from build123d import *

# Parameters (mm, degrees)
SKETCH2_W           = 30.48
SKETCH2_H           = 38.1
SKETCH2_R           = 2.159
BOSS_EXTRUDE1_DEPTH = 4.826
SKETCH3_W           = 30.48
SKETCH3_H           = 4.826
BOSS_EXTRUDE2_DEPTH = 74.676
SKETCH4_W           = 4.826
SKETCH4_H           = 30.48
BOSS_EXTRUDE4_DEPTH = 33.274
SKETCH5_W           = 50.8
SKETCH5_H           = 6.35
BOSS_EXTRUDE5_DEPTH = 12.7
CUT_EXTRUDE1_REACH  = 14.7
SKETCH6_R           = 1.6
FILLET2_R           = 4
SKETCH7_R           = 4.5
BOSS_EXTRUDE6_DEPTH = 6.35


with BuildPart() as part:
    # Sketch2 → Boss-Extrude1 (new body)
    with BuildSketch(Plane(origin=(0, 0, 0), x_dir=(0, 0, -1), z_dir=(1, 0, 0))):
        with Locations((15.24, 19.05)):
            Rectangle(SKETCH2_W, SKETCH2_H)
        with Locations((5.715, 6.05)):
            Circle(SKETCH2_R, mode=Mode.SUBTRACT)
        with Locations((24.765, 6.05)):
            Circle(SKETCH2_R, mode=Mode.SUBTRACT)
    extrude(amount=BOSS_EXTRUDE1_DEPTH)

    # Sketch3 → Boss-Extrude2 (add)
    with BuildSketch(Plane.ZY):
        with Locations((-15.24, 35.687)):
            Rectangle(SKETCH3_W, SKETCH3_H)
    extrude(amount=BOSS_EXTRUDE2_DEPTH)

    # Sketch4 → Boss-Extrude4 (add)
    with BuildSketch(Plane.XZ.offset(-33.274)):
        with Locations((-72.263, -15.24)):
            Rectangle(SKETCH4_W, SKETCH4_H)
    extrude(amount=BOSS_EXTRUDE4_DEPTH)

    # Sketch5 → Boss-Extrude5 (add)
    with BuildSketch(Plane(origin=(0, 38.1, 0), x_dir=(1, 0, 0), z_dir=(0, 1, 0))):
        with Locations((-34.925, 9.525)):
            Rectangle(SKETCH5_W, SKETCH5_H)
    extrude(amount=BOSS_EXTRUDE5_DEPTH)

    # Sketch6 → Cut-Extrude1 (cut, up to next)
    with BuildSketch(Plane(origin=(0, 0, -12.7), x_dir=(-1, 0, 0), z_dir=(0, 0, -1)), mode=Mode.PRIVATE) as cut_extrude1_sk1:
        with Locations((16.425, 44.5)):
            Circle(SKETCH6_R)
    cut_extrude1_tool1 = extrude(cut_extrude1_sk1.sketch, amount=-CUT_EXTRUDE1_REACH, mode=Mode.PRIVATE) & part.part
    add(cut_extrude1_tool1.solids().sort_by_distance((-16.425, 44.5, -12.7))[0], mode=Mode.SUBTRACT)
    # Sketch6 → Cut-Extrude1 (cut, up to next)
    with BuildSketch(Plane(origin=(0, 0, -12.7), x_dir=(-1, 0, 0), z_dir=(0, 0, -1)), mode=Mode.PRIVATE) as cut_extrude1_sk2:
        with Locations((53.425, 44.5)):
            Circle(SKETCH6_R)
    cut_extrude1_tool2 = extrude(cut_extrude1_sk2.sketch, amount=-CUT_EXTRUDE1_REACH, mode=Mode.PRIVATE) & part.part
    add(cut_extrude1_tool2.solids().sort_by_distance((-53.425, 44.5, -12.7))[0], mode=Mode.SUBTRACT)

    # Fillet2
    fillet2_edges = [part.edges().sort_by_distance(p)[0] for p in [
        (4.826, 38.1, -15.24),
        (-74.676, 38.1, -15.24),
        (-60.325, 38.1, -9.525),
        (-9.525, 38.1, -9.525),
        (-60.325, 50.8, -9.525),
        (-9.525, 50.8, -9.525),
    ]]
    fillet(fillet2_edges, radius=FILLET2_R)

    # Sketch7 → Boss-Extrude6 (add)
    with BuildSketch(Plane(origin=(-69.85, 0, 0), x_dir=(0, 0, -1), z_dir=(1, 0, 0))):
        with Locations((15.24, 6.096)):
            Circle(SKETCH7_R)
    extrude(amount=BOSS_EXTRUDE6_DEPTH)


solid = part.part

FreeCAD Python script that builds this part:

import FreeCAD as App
import Part
import Sketcher
from FreeCAD import Vector
Q = App.Units.Quantity


def edges_at(feature, points):
    """Names of the edges that pass closest to the given points."""
    edges = feature.Shape.Edges
    near = lambda p: min(range(len(edges)), key=lambda i: edges[i].distToShape(Part.Vertex(*p))[0])
    return sorted({f"Edge{near(p) + 1}" for p in points})

doc = App.newDocument("Part")
body = doc.addObject("PartDesign::Body", "Body")

sketch1 = body.newObject("Sketcher::SketchObject", "Sketch")
sketch1.AttachmentSupport = (doc.getObject("YZ_Plane"), [""])
sketch1.MapMode = "FlatFace"
sketch1.addGeometry([
    Part.LineSegment(Vector(38.1, 0, 0), Vector(0, 0, 0)),
    Part.LineSegment(Vector(0, 0, 0), Vector(0, -30.5, 0)),
    Part.LineSegment(Vector(0, -30.5, 0), Vector(38.1, -30.5, 0)),
    Part.LineSegment(Vector(38.1, -30.5, 0), Vector(38.1, 0, 0)),
    Part.Circle(Vector(6, -5.7, 0), Vector(0, 0, 1), 2.2),
    Part.Circle(Vector(6, -24.8, 0), Vector(0, 0, 1), 2.2),
], False)
sketch1.addConstraint([
    Sketcher.Constraint("Coincident", 0, 2, 1, 1),
    Sketcher.Constraint("Coincident", 1, 2, 2, 1),
    Sketcher.Constraint("Coincident", 2, 2, 3, 1),
    Sketcher.Constraint("Coincident", 3, 2, 0, 1),
    Sketcher.Constraint("Horizontal", 0),
    Sketcher.Constraint("Vertical", 1),
    Sketcher.Constraint("Horizontal", 2),
    Sketcher.Constraint("Vertical", 3),
    Sketcher.Constraint("Coincident", 0, 2, -1, 1),
    Sketcher.Constraint("Equal", 4, 5),
    Sketcher.Constraint("Vertical", 4, 3, 5, 3),
    Sketcher.Constraint("Diameter", 4, Q("0.17 in")),
    Sketcher.Constraint("DistanceX", 0, 2, 0, 1, Q("1.5 in")),
    Sketcher.Constraint("DistanceY", 1, 2, 1, 1, Q("1.2 in")),
    Sketcher.Constraint("DistanceY", 5, 3, 4, 3, Q("0.75 in")),
    Sketcher.Constraint("DistanceY", 4, 3, -1, 1, Q("0.225 in")),
    Sketcher.Constraint("DistanceX", -1, 1, 4, 3, Q("6.05 mm")),
])
pad1 = body.newObject("PartDesign::Pad", "Pad")
pad1.Profile = sketch1
pad1.Length = Q("0.19 in")

sketch2 = body.newObject("Sketcher::SketchObject", "Sketch001")
sketch2.AttachmentSupport = (doc.getObject("YZ_Plane"), [""])
sketch2.MapMode = "FlatFace"
sketch2.addGeometry([
    Part.LineSegment(Vector(38.1, -30.5, 0), Vector(33.3, -30.5, 0)),
    Part.LineSegment(Vector(33.3, -30.5, 0), Vector(33.3, 0, 0)),
    Part.LineSegment(Vector(33.3, 0, 0), Vector(38.1, 0, 0)),
    Part.LineSegment(Vector(38.1, 0, 0), Vector(38.1, -30.5, 0)),
], False)
sketch2.addConstraint([
    Sketcher.Constraint("Coincident", 0, 2, 1, 1),
    Sketcher.Constraint("Coincident", 1, 2, 2, 1),
    Sketcher.Constraint("Coincident", 2, 2, 3, 1),
    Sketcher.Constraint("Coincident", 3, 2, 0, 1),
    Sketcher.Constraint("Horizontal", 0),
    Sketcher.Constraint("Vertical", 1),
    Sketcher.Constraint("Horizontal", 2),
    Sketcher.Constraint("Vertical", 3),
    Sketcher.Constraint("PointOnObject", 1, 2, -1),
    Sketcher.Constraint("DistanceY", 1, 1, 1, 2, Q("1.2 in")),
    Sketcher.Constraint("DistanceX", 0, 2, 0, 1, Q("0.19 in")),
    Sketcher.Constraint("DistanceX", -1, 1, 2, 2, Q("1.5 in")),
])
pad2 = body.newObject("PartDesign::Pad", "Pad001")
pad2.Profile = sketch2
pad2.Length = Q("2.94 in")
pad2.Reversed = True

sketch3 = body.newObject("Sketcher::SketchObject", "Sketch002")
sketch3.AttachmentSupport = (doc.getObject("XZ_Plane"), [""])
sketch3.MapMode = "FlatFace"
sketch3.AttachmentOffset = App.Placement(Vector(0, 0, -1.31 * 25.4), App.Rotation())
sketch3.addGeometry([
    Part.LineSegment(Vector(-74.7, 0, 0), Vector(-74.7, -30.5, 0)),
    Part.LineSegment(Vector(-74.7, -30.5, 0), Vector(-69.8, -30.5, 0)),
    Part.LineSegment(Vector(-69.8, -30.5, 0), Vector(-69.8, 0, 0)),
    Part.LineSegment(Vector(-69.8, 0, 0), Vector(-74.7, 0, 0)),
], False)
sketch3.addConstraint([
    Sketcher.Constraint("Coincident", 0, 2, 1, 1),
    Sketcher.Constraint("Coincident", 1, 2, 2, 1),
    Sketcher.Constraint("Coincident", 2, 2, 3, 1),
    Sketcher.Constraint("Coincident", 3, 2, 0, 1),
    Sketcher.Constraint("Vertical", 0),
    Sketcher.Constraint("Horizontal", 1),
    Sketcher.Constraint("Vertical", 2),
    Sketcher.Constraint("Horizontal", 3),
    Sketcher.Constraint("PointOnObject", 2, 2, -1),
    Sketcher.Constraint("DistanceY", 0, 2, 0, 1, Q("1.2 in")),
    Sketcher.Constraint("DistanceX", 1, 1, 1, 2, Q("0.19 in")),
    Sketcher.Constraint("DistanceX", 0, 2, -1, 1, Q("2.94 in")),
])
pad3 = body.newObject("PartDesign::Pad", "Pad002")
pad3.Profile = sketch3
pad3.Length = Q("1.31 in")

sketch4 = body.newObject("Sketcher::SketchObject", "Sketch003")
sketch4.AttachmentSupport = (doc.getObject("XZ_Plane"), [""])
sketch4.MapMode = "FlatFace"
sketch4.AttachmentOffset = App.Placement(Vector(0, 0, -1.5 * 25.4), App.Rotation())
sketch4.addGeometry([
    Part.LineSegment(Vector(-60, -13, 0), Vector(-60, -6, 0)),
    Part.LineSegment(Vector(-60, -6, 0), Vector(-10, -6, 0)),
    Part.LineSegment(Vector(-10, -6, 0), Vector(-10, -13, 0)),
    Part.LineSegment(Vector(-10, -13, 0), Vector(-60, -13, 0)),
], False)
sketch4.addConstraint([
    Sketcher.Constraint("Coincident", 0, 2, 1, 1),
    Sketcher.Constraint("Coincident", 1, 2, 2, 1),
    Sketcher.Constraint("Coincident", 2, 2, 3, 1),
    Sketcher.Constraint("Coincident", 3, 2, 0, 1),
    Sketcher.Constraint("Vertical", 0),
    Sketcher.Constraint("Horizontal", 1),
    Sketcher.Constraint("Vertical", 2),
    Sketcher.Constraint("Horizontal", 3),
    Sketcher.Constraint("DistanceX", 1, 1, 1, 2, Q("2 in")),
    Sketcher.Constraint("DistanceY", 0, 1, 0, 2, Q("0.25 in")),
    Sketcher.Constraint("DistanceY", 2, 2, -1, 1, Q("0.5 in")),
    Sketcher.Constraint("DistanceX", 0, 2, -1, 1, Q("2.375 in")),
])
pad4 = body.newObject("PartDesign::Pad", "Pad003")
pad4.Profile = sketch4
pad4.Length = Q("0.5 in")
pad4.Reversed = True

sketch5 = body.newObject("Sketcher::SketchObject", "Sketch004")
sketch5.AttachmentSupport = (doc.getObject("XY_Plane"), [""])
sketch5.MapMode = "FlatFace"
sketch5.AttachmentOffset = App.Placement(Vector(0, 0, -0.5 * 25.4), App.Rotation())
sketch5.addGeometry(Part.Circle(Vector(-16.4, 44.5, 0), Vector(0, 0, 1), 1.6), False)
sketch5.addConstraint([
    Sketcher.Constraint("Diameter", 0, Q("3.2 mm")),
    Sketcher.Constraint("DistanceX", 0, 3, -1, 1, Q("16.425 mm")),
    Sketcher.Constraint("DistanceY", -1, 1, 0, 3, Q("44.5 mm")),
])
pocket1 = body.newObject("PartDesign::Pocket", "Pocket")
pocket1.Profile = sketch5
pocket1.Type = "UpToFirst"
pocket1.Reversed = True

sketch6 = body.newObject("Sketcher::SketchObject", "Sketch005")
sketch6.AttachmentSupport = (doc.getObject("XY_Plane"), [""])
sketch6.MapMode = "FlatFace"
sketch6.AttachmentOffset = App.Placement(Vector(0, 0, -0.5 * 25.4), App.Rotation())
sketch6.addGeometry(Part.Circle(Vector(-53.4, 44.5, 0), Vector(0, 0, 1), 1.6), False)
sketch6.addConstraint([
    Sketcher.Constraint("Diameter", 0, Q("3.2 mm")),
    Sketcher.Constraint("DistanceX", 0, 3, -1, 1, Q("53.425 mm")),
    Sketcher.Constraint("DistanceY", -1, 1, 0, 3, Q("44.5 mm")),
])
pocket2 = body.newObject("PartDesign::Pocket", "Pocket001")
pocket2.Profile = sketch6
pocket2.Type = "UpToFirst"
pocket2.Reversed = True
doc.recompute()

fillet = body.newObject("PartDesign::Fillet", "Fillet")
fillet.Base = (pocket2, edges_at(pocket2, [
    (4.826, 38.1, -15.24),
    (-74.676, 38.1, -15.24),
    (-60.325, 38.1, -9.525),
    (-9.525, 38.1, -9.525),
    (-60.325, 50.8, -9.525),
    (-9.525, 50.8, -9.525),
]))
fillet.Radius = 4

sketch7 = body.newObject("Sketcher::SketchObject", "Sketch006")
sketch7.AttachmentSupport = (doc.getObject("YZ_Plane"), [""])
sketch7.MapMode = "FlatFace"
sketch7.AttachmentOffset = App.Placement(Vector(0, 0, -2.75 * 25.4), App.Rotation())
sketch7.addGeometry(Part.Circle(Vector(6.1, -15.2, 0), Vector(0, 0, 1), 4.5), False)
sketch7.addConstraint([
    Sketcher.Constraint("DistanceY", 0, 3, -1, 1, Q("0.6 in")),
    Sketcher.Constraint("Diameter", 0, Q("9 mm")),
    Sketcher.Constraint("DistanceX", -1, 1, 0, 3, Q("0.24 in")),
])
pad5 = body.newObject("PartDesign::Pad", "Pad004")
pad5.Profile = sketch7
pad5.Length = Q("0.25 in")

doc.recompute()
